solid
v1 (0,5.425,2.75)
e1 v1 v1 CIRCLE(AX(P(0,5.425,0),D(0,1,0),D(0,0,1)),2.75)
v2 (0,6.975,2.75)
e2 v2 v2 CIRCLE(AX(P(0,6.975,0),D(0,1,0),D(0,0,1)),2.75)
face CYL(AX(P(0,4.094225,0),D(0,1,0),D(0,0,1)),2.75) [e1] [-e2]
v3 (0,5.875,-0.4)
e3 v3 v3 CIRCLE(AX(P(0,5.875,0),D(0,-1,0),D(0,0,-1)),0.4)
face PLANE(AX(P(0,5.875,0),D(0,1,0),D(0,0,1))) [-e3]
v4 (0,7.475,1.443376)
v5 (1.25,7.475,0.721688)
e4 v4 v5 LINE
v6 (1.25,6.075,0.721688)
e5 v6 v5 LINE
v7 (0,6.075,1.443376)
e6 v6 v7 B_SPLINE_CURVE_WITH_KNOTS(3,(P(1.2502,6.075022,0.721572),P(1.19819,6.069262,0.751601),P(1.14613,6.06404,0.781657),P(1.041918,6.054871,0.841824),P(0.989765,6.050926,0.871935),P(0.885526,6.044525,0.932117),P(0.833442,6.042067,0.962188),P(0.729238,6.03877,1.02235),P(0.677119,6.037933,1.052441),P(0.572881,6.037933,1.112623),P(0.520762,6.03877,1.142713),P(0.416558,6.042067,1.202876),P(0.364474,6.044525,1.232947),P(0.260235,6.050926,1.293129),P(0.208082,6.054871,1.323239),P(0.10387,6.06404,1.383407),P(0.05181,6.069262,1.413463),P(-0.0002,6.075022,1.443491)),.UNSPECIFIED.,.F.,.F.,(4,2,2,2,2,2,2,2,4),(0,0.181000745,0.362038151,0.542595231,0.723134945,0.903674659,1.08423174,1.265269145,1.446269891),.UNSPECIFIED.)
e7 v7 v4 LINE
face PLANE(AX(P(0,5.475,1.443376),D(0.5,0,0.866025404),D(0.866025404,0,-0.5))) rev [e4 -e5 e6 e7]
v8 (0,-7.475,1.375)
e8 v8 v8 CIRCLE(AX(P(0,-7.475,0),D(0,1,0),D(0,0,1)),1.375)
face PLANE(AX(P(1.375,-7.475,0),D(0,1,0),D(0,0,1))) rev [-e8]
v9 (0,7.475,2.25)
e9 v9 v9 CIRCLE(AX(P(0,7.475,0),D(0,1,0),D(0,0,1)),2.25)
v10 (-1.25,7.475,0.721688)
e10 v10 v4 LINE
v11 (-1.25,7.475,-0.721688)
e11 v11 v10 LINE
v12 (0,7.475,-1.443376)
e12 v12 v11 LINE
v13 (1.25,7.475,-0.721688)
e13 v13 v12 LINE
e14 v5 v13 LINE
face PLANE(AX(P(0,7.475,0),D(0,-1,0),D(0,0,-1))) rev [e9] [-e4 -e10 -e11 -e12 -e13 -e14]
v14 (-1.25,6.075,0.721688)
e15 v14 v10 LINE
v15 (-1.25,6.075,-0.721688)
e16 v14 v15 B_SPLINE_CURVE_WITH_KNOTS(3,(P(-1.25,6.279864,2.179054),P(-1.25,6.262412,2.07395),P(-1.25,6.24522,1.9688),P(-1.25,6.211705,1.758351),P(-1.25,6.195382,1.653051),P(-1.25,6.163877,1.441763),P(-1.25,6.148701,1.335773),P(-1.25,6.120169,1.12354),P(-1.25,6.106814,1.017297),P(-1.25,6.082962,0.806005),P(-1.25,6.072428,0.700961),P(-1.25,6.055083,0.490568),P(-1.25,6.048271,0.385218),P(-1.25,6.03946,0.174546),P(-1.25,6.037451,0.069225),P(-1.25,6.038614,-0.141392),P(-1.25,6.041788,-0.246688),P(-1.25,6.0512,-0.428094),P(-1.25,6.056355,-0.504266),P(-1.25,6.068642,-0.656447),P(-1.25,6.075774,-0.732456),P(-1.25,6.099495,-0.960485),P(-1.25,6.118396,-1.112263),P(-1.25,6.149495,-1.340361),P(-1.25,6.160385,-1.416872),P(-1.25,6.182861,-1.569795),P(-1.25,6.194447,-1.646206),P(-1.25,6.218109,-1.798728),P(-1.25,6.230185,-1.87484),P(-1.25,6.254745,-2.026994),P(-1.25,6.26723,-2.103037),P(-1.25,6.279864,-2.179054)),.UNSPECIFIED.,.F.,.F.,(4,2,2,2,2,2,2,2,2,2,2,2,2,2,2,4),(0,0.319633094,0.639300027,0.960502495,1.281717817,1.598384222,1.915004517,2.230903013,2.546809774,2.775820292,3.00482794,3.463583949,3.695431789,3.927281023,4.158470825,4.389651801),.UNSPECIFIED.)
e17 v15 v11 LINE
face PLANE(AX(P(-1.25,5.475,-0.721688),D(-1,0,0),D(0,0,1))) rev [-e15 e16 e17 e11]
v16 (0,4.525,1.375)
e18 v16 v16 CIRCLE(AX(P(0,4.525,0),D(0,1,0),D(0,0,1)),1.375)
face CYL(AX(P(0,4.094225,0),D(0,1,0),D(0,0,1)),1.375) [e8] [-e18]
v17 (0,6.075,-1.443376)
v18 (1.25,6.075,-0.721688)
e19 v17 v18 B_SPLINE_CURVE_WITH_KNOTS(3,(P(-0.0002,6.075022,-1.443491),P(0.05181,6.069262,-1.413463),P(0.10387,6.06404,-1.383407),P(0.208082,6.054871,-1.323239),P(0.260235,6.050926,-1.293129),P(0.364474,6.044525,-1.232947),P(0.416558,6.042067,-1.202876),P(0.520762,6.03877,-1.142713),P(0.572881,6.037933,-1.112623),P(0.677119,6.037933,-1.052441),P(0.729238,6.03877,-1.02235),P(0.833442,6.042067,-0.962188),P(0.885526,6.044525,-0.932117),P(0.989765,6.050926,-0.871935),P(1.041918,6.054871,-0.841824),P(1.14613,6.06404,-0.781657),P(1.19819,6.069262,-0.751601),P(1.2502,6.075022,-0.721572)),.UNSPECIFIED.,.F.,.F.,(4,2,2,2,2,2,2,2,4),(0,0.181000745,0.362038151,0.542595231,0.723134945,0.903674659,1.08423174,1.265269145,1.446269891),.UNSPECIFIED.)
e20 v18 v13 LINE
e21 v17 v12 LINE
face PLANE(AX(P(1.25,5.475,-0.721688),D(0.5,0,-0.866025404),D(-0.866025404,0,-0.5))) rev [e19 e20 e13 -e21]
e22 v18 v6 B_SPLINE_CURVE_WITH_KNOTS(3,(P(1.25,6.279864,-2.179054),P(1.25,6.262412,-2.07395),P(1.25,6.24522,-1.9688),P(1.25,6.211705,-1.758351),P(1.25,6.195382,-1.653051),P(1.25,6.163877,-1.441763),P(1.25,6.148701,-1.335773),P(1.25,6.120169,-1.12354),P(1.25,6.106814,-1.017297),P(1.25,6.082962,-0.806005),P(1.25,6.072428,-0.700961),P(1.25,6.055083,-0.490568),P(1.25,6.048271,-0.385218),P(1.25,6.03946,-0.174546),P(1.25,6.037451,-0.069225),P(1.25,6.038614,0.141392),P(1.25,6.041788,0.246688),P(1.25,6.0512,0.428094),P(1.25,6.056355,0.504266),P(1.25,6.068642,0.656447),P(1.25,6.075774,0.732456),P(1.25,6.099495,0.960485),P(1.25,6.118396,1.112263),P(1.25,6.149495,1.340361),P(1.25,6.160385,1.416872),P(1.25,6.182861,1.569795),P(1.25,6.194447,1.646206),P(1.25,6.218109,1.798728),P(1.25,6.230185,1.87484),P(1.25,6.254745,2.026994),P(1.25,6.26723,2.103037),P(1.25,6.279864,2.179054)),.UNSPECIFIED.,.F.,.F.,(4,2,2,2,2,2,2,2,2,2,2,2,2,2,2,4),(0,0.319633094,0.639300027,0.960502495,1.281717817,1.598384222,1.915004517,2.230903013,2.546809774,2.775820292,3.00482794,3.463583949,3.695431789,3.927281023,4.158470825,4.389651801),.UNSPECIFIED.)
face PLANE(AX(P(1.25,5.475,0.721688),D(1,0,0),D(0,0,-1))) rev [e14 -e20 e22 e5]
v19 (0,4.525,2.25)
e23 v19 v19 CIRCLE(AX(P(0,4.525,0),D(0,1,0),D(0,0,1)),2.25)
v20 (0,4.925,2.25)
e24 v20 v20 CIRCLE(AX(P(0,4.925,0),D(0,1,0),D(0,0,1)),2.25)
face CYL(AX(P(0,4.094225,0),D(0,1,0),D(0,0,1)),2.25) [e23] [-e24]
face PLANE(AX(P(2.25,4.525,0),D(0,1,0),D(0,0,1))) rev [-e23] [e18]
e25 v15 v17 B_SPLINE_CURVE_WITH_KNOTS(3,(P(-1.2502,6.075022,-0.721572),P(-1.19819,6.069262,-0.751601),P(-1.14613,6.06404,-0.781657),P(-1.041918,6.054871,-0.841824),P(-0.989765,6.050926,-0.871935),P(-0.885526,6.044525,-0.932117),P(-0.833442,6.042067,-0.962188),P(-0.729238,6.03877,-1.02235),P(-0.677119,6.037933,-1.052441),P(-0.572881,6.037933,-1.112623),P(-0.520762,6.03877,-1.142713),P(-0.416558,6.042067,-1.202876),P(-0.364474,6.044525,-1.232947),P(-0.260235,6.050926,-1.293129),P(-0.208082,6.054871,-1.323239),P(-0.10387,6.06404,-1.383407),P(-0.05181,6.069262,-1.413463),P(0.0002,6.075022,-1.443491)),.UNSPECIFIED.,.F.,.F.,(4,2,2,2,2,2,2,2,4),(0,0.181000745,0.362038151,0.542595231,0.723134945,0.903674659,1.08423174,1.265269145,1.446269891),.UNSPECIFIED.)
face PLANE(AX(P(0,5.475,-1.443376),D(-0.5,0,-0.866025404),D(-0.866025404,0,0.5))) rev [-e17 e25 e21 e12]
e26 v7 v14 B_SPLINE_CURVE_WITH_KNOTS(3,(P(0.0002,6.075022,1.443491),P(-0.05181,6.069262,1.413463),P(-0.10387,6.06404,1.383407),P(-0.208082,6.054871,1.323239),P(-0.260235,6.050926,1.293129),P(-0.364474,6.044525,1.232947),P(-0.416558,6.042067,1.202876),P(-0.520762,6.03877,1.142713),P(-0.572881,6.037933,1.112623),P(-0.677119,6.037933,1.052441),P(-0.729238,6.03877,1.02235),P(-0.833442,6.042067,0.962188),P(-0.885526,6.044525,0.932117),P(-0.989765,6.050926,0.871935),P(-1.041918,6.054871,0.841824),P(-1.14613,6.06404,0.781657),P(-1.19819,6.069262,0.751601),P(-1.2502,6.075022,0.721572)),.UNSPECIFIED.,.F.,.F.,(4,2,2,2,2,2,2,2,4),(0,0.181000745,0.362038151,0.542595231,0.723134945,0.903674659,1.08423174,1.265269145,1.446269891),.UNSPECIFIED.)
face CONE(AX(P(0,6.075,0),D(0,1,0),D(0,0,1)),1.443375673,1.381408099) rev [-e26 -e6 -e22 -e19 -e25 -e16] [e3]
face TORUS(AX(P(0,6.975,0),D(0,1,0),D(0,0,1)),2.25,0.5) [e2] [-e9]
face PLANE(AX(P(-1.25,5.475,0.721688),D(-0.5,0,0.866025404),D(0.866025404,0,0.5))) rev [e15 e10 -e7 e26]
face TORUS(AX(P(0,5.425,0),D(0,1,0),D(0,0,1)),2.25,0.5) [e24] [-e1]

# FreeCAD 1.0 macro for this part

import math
import FreeCAD as App
import Part
import Sketcher
from FreeCAD import Vector
Q = App.Units.Quantity

doc = App.newDocument("Part")
body = doc.addObject("PartDesign::Body", "Body")

sketch1 = body.newObject("Sketcher::SketchObject", "Sketch")
sketch1.AttachmentSupport = (doc.getObject("XY_Plane"), [""])
sketch1.MapMode = "FlatFace"
sketch1.addGeometry([
    Part.LineSegment(Vector(2.25, 7.47, 0), Vector(0, 7.47, 0)),
    Part.LineSegment(Vector(0, 7.47, 0), Vector(0, -7.47, 0)),
    Part.LineSegment(Vector(0, -7.47, 0), Vector(1.38, -7.47, 0)),
    Part.LineSegment(Vector(1.38, -7.47, 0), Vector(1.38, 4.53, 0)),
    Part.LineSegment(Vector(1.38, 4.53, 0), Vector(2.25, 4.53, 0)),
    Part.LineSegment(Vector(2.25, 4.53, 0), Vector(2.25, 4.92, 0)),
    Part.ArcOfCircle(Part.Circle(Vector(2.25, 5.42, 0), Vector(0, 0, 1), 0.5), math.radians(-90), math.radians(0)),
    Part.LineSegment(Vector(2.75, 5.42, 0), Vector(2.75, 6.97, 0)),
    Part.ArcOfCircle(Part.Circle(Vector(2.25, 6.98, 0), Vector(0, 0, 1), 0.5), math.radians(0), math.radians(90)),
], False)
sketch1.addConstraint([
    Sketcher.Constraint("Coincident", 0, 2, 1, 1),
    Sketcher.Constraint("Coincident", 1, 2, 2, 1),
    Sketcher.Constraint("Coincident", 2, 2, 3, 1),
    Sketcher.Constraint("Coincident", 3, 2, 4, 1),
    Sketcher.Constraint("Coincident", 4, 2, 5, 1),
    Sketcher.Constraint("Coincident", 5, 2, 6, 1),
    Sketcher.Constraint("Tangent", 6, 2, 7, 1),
    Sketcher.Constraint("Tangent", 7, 2, 8, 1),
    Sketcher.Constraint("Tangent", 8, 2, 0, 1),
    Sketcher.Constraint("Horizontal", 0),
    Sketcher.Constraint("Vertical", 1),
    Sketcher.Constraint("Horizontal", 2),
    Sketcher.Constraint("Vertical", 3),
    Sketcher.Constraint("Horizontal", 4),
    Sketcher.Constraint("Vertical", 5),
    Sketcher.Constraint("Vertical", 7),
    Sketcher.Constraint("Equal", 6, 8),
    Sketcher.Constraint("Symmetric", 0, 2, 1, 2, -1, 1),
    Sketcher.Constraint("Vertical", 8, 3, 4, 2),
    Sketcher.Constraint("Radius", 6, 0.5),
    Sketcher.Constraint("DistanceY", 3, 1, 3, 2, 12.0),
    Sketcher.Constraint("DistanceY", 5, 1, 5, 2, 0.4),
    Sketcher.Constraint("DistanceX", 0, 2, 0, 1, 2.25),
    Sketcher.Constraint("DistanceY", 1, 2, 1, 1, 14.95),
    Sketcher.Constraint("DistanceX", 2, 1, 2, 2, 1.375),
])
revolution = body.newObject("PartDesign::Revolution", "Revolution")
revolution.Profile = sketch1
revolution.ReferenceAxis = (sketch1, ["V_Axis"])
revolution.Angle = 360
body2 = doc.addObject("PartDesign::Body", "Body001")

sketch2 = body2.newObject("Sketcher::SketchObject", "Sketch001")
sketch2.AttachmentSupport = (doc.getObject("XZ_Plane001"), [""])
sketch2.MapMode = "FlatFace"
sketch2.AttachmentOffset = App.Placement(Vector(0, 0, -7.475), App.Rotation())
sketch2.addGeometry([
    Part.LineSegment(Vector(0, -1.4, 0), Vector(-1.2, -0.7, 0)),
    Part.LineSegment(Vector(-1.2, -0.7, 0), Vector(-1.2, 0.7, 0)),
    Part.LineSegment(Vector(-1.2, 0.7, 0), Vector(0, 1.4, 0)),
    Part.LineSegment(Vector(0, 1.4, 0), Vector(1.2, 0.7, 0)),
    Part.LineSegment(Vector(1.2, 0.7, 0), Vector(1.2, -0.7, 0)),
    Part.LineSegment(Vector(1.2, -0.7, 0), Vector(0, -1.4, 0)),
], False)
sketch2.addConstraint([
    Sketcher.Constraint("Coincident", 0, 2, 1, 1),
    Sketcher.Constraint("Coincident", 1, 2, 2, 1),
    Sketcher.Constraint("Coincident", 2, 2, 3, 1),
    Sketcher.Constraint("Coincident", 3, 2, 4, 1),
    Sketcher.Constraint("Coincident", 4, 2, 5, 1),
    Sketcher.Constraint("Coincident", 5, 2, 0, 1),
    Sketcher.Constraint("Vertical", 1),
    Sketcher.Constraint("Vertical", 4),
    Sketcher.Constraint("Symmetric", 0, 2, 3, 2, -1, 1),
    Sketcher.Constraint("Symmetric", 2, 2, 5, 2, -1, 1),
    Sketcher.Constraint("PointOnObject", 2, 2, -2),
    Sketcher.Constraint("Parallel", 2, 5),
    Sketcher.Constraint("Horizontal", 1, 2, 3, 2),
    Sketcher.Constraint("Angle", 0, Q("150 deg")),
    Sketcher.Constraint("DistanceX", 1, 2, 3, 2, 2.5),
    Sketcher.Constraint("DistanceY", 1, 1, 1, 2, 1.443376),
])
pad1 = body2.newObject("PartDesign::Pad", "Pad")
pad1.Profile = sketch2
pad1.Length = 2

sketch3 = body2.newObject("Sketcher::SketchObject", "Sketch002")
sketch3.AttachmentSupport = (doc.getObject("YZ_Plane001"), [""])
sketch3.MapMode = "FlatFace"
sketch3.addGeometry([
    Part.LineSegment(Vector(5.88, -0.4, 0), Vector(5.88, 0, 0)),
    Part.LineSegment(Vector(5.88, 0, 0), Vector(5.47, 0, 0)),
    Part.LineSegment(Vector(5.47, 0, 0), Vector(5.47, -1.44, 0)),
    Part.LineSegment(Vector(5.47, -1.44, 0), Vector(6.08, -1.44, 0)),
    Part.LineSegment(Vector(6.08, -1.44, 0), Vector(5.88, -0.4, 0)),
], False)
sketch3.addConstraint([
    Sketcher.Constraint("Coincident", 0, 2, 1, 1),
    Sketcher.Constraint("Coincident", 1, 2, 2, 1),
    Sketcher.Constraint("Coincident", 2, 2, 3, 1),
    Sketcher.Constraint("Coincident", 3, 2, 4, 1),
    Sketcher.Constraint("Coincident", 4, 2, 0, 1),
    Sketcher.Constraint("Vertical", 0),
    Sketcher.Constraint("Horizontal", 1),
    Sketcher.Constraint("Vertical", 2),
    Sketcher.Constraint("Horizontal", 3),
    Sketcher.Constraint("PointOnObject", 0, 2, -1),
    Sketcher.Constraint("Equal", 1, 0),
    Sketcher.Constraint("DistanceX", 1, 2, 1, 1, 0.4),
    Sketcher.Constraint("DistanceX", 3, 1, 3, 2, 0.6),
    Sketcher.Constraint("DistanceX", -1, 1, 0, 2, 5.875),
    Sketcher.Constraint("Distance", 4, 1.062371),
])
groove = body2.newObject("PartDesign::Groove", "Groove")
groove.Profile = sketch3
groove.ReferenceAxis = (sketch3, ["H_Axis"])
groove.Angle = 360
doc.recompute()

boolean = body.newObject("PartDesign::Boolean", "Boolean")
boolean.Type = "Cut"
boolean.addObjects([body2])

doc.recompute()
